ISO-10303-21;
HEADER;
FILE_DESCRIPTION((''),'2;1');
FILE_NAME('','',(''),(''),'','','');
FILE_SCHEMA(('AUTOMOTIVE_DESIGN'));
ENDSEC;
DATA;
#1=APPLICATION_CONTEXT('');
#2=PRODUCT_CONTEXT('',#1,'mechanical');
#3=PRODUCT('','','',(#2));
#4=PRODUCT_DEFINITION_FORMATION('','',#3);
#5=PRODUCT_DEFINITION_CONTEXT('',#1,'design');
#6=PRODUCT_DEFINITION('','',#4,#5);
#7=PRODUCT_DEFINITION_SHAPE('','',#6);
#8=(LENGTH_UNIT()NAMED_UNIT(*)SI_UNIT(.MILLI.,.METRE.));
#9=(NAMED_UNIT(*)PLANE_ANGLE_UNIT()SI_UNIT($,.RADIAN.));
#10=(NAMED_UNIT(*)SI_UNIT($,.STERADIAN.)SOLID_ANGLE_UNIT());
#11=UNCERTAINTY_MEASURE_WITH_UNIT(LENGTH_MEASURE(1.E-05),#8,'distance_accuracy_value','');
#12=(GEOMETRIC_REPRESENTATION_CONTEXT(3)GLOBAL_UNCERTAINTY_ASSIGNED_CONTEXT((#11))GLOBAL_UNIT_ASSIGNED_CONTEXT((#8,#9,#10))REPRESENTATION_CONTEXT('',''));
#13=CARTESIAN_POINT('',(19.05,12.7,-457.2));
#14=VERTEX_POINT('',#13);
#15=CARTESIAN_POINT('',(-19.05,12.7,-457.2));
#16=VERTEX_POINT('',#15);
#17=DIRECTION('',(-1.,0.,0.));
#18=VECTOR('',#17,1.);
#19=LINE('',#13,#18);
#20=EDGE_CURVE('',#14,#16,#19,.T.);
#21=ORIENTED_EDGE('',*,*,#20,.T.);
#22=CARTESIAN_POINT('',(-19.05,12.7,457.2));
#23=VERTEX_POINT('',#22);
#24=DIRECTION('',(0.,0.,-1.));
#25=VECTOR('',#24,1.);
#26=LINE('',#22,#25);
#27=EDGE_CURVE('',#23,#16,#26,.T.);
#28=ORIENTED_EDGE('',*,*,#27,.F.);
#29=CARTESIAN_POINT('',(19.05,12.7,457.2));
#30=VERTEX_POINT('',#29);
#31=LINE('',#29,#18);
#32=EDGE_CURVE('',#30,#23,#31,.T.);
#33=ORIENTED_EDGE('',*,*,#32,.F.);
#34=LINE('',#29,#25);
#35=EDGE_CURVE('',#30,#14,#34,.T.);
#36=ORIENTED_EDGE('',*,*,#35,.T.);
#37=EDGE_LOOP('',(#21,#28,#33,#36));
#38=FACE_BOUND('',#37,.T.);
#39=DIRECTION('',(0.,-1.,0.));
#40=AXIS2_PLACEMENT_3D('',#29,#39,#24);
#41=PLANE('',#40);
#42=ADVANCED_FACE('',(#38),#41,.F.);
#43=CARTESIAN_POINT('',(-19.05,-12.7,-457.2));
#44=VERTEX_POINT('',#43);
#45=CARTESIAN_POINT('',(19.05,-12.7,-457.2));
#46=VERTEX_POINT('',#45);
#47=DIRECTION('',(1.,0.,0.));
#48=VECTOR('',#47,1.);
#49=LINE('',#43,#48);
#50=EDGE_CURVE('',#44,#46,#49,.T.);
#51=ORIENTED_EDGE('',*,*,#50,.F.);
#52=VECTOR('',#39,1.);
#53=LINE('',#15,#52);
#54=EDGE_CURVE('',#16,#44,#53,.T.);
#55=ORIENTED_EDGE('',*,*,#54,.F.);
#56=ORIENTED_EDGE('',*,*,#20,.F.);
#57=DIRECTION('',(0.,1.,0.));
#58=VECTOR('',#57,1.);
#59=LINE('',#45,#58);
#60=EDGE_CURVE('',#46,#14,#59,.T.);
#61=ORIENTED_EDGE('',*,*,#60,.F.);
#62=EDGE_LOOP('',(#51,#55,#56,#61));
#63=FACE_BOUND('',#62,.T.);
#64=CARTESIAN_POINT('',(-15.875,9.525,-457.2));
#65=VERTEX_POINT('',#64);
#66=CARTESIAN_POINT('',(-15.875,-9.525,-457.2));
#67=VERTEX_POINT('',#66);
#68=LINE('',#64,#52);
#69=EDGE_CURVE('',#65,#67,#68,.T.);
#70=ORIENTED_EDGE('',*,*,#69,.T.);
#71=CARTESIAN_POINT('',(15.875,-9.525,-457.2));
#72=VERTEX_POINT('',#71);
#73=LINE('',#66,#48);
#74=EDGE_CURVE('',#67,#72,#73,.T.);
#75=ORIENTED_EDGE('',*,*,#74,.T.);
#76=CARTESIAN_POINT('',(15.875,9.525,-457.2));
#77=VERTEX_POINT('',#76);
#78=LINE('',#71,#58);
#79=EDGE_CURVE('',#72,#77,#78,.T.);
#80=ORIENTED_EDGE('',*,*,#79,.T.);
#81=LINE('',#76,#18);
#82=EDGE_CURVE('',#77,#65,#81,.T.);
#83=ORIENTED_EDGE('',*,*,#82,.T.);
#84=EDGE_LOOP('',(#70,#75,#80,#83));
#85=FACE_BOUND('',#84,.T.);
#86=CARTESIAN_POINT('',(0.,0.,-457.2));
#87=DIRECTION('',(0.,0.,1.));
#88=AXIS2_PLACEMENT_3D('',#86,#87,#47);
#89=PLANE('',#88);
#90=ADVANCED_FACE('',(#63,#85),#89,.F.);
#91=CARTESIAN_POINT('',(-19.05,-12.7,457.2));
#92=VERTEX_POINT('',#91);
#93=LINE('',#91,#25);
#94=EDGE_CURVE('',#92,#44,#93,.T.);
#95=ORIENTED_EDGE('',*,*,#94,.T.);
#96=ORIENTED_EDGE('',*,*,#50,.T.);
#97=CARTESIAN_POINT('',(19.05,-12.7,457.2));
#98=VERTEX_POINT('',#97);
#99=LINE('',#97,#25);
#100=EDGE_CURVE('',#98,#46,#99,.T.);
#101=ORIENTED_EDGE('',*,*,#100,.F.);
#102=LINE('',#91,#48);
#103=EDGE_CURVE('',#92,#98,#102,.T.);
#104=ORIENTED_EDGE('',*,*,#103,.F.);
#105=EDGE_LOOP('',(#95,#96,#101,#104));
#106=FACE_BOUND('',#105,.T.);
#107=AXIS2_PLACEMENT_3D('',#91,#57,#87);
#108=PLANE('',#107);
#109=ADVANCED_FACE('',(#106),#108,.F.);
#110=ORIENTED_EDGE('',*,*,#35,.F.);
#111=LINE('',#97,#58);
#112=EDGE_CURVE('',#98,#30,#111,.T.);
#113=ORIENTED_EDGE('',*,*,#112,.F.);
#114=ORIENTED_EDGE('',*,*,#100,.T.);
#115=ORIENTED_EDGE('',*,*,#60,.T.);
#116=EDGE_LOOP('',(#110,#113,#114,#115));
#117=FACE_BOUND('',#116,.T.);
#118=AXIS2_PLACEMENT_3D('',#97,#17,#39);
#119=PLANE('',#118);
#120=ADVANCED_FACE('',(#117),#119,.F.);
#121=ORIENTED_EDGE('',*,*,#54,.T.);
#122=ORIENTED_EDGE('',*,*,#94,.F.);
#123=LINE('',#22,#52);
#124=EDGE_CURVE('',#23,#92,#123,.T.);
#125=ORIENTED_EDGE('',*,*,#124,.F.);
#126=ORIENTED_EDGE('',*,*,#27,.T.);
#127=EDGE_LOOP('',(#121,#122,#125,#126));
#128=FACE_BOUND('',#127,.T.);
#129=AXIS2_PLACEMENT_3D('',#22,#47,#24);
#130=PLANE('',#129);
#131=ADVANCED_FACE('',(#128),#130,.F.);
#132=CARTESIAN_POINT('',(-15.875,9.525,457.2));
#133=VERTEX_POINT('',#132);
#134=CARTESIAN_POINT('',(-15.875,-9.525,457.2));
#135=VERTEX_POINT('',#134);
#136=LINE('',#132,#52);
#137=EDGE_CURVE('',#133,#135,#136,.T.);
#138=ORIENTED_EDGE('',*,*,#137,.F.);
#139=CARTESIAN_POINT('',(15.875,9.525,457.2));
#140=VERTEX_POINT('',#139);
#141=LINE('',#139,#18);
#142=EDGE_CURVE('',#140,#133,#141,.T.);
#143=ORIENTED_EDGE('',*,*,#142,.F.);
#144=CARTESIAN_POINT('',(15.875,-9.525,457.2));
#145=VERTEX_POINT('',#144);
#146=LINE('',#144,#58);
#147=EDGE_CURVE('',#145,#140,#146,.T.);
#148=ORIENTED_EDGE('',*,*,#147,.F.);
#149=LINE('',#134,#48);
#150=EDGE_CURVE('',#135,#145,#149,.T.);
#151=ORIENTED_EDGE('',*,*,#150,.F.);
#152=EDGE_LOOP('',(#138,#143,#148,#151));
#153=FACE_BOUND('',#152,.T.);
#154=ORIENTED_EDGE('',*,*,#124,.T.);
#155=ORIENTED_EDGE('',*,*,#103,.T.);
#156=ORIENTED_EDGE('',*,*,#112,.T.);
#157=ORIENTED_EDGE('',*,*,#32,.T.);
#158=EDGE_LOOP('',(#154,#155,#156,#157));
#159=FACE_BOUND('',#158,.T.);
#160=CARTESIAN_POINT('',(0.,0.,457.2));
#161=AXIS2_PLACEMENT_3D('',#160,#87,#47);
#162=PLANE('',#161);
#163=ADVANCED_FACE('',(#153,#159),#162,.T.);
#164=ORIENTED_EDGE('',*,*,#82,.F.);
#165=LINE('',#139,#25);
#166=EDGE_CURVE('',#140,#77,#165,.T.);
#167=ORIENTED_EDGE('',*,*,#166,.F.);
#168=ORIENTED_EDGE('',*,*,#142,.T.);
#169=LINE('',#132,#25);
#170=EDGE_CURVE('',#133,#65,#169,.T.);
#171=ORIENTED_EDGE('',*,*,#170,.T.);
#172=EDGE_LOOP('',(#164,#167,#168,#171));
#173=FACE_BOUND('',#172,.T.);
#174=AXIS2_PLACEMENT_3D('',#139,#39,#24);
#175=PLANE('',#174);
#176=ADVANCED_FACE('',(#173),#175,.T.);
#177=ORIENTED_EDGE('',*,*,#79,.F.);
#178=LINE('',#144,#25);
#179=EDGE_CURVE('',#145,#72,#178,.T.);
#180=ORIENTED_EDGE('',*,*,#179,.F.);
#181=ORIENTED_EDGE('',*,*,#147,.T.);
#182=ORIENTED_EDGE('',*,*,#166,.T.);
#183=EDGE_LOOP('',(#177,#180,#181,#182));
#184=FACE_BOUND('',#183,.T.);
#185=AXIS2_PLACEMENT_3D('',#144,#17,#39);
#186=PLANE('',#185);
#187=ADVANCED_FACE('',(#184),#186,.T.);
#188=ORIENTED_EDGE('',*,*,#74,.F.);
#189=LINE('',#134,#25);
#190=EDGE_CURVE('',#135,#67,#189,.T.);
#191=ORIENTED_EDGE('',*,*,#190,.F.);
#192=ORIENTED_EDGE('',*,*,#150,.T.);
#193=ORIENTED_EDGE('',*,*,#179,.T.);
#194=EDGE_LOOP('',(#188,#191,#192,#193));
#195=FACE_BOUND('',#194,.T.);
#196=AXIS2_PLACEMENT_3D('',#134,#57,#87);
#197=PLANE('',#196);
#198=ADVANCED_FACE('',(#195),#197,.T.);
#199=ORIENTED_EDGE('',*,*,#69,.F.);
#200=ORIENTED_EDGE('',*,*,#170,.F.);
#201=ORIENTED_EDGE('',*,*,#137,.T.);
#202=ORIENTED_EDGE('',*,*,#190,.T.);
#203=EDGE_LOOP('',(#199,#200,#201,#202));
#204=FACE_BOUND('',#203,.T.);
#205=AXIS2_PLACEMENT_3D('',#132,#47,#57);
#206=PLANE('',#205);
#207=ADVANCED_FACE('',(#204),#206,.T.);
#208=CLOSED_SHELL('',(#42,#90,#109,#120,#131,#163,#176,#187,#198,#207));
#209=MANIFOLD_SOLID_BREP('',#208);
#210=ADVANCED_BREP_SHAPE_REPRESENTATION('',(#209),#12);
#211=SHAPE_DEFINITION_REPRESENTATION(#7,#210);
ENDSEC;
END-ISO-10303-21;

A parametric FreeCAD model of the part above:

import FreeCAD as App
import Part
import Sketcher
from FreeCAD import Vector
Q = App.Units.Quantity

doc = App.newDocument("Part")
params = doc.addObject("Spreadsheet::Sheet", "Params")
for row, (alias, value) in enumerate([
    ("sketch1_height", "1 in"),
    ("sketch1_width", "1.5 in"),
    ("sketch1_width2", "1.25 in"),
    ("sketch1_height2", "0.75 in"),
    ("pad1_length", "18 in"),
    ("pad1_length2", "18 in"),
], start=1):
    params.set(f"A{row}", alias)
    params.set(f"B{row}", "=" + value)
    params.setAlias(f"B{row}", alias)

body = doc.addObject("PartDesign::Body", "Body")

sketch1 = body.newObject("Sketcher::SketchObject", "Sketch")
sketch1.AttachmentSupport = (doc.getObject("XY_Plane"), [""])
sketch1.MapMode = "FlatFace"
sketch1.addGeometry(Part.LineSegment(Vector(-19, 13, 0), Vector(-19, -13, 0)), False)
sketch1.addGeometry(Part.LineSegment(Vector(-19, -13, 0), Vector(19, -13, 0)), False)
sketch1.addGeometry(Part.LineSegment(Vector(19, -13, 0), Vector(19, 13, 0)), False)
sketch1.addGeometry(Part.LineSegment(Vector(19, 13, 0), Vector(-19, 13, 0)), False)
sketch1.addGeometry(Part.LineSegment(Vector(16, -10, 0), Vector(-16, -10, 0)), False)
sketch1.addGeometry(Part.LineSegment(Vector(-16, -10, 0), Vector(-16, 10, 0)), False)
sketch1.addGeometry(Part.LineSegment(Vector(-16, 10, 0), Vector(16, 10, 0)), False)
sketch1.addGeometry(Part.LineSegment(Vector(16, 10, 0), Vector(16, -10, 0)), False)
sketch1.addConstraint(Sketcher.Constraint("Coincident", 0, 2, 1, 1))
sketch1.addConstraint(Sketcher.Constraint("Coincident", 1, 2, 2, 1))
sketch1.addConstraint(Sketcher.Constraint("Coincident", 2, 2, 3, 1))
sketch1.addConstraint(Sketcher.Constraint("Coincident", 3, 2, 0, 1))
sketch1.addConstraint(Sketcher.Constraint("Coincident", 4, 2, 5, 1))
sketch1.addConstraint(Sketcher.Constraint("Coincident", 5, 2, 6, 1))
sketch1.addConstraint(Sketcher.Constraint("Coincident", 6, 2, 7, 1))
sketch1.addConstraint(Sketcher.Constraint("Coincident", 7, 2, 4, 1))
sketch1.addConstraint(Sketcher.Constraint("Vertical", 0))
sketch1.addConstraint(Sketcher.Constraint("Horizontal", 1))
sketch1.addConstraint(Sketcher.Constraint("Vertical", 2))
sketch1.addConstraint(Sketcher.Constraint("Horizontal", 3))
sketch1.addConstraint(Sketcher.Constraint("Horizontal", 4))
sketch1.addConstraint(Sketcher.Constraint("Vertical", 5))
sketch1.addConstraint(Sketcher.Constraint("Horizontal", 6))
sketch1.addConstraint(Sketcher.Constraint("Vertical", 7))
sketch1.addConstraint(Sketcher.Constraint("Symmetric", 0, 2, 2, 2, -1, 1))
sketch1.addConstraint(Sketcher.Constraint("Symmetric", 4, 2, 6, 2, -1, 1))
sketch1.addConstraint(Sketcher.Constraint("DistanceY", 0, 2, 0, 1, Q("1 in")))
sketch1.addConstraint(Sketcher.Constraint("DistanceX", 1, 1, 1, 2, Q("1.5 in")))
sketch1.addConstraint(Sketcher.Constraint("DistanceX", 4, 2, 4, 1, Q("1.25 in")))
sketch1.addConstraint(Sketcher.Constraint("DistanceY", 5, 1, 5, 2, Q("0.75 in")))
sketch1.setExpression("Constraints[18]", "Params.sketch1_height")
sketch1.setExpression("Constraints[19]", "Params.sketch1_width")
sketch1.setExpression("Constraints[20]", "Params.sketch1_width2")
sketch1.setExpression("Constraints[21]", "Params.sketch1_height2")
pad1 = body.newObject("PartDesign::Pad", "Pad")
pad1.Profile = sketch1
pad1.Type = "TwoLengths"
pad1.setExpression("Length", "Params.pad1_length")
pad1.setExpression("Length2", "Params.pad1_length2")

doc.recompute()
